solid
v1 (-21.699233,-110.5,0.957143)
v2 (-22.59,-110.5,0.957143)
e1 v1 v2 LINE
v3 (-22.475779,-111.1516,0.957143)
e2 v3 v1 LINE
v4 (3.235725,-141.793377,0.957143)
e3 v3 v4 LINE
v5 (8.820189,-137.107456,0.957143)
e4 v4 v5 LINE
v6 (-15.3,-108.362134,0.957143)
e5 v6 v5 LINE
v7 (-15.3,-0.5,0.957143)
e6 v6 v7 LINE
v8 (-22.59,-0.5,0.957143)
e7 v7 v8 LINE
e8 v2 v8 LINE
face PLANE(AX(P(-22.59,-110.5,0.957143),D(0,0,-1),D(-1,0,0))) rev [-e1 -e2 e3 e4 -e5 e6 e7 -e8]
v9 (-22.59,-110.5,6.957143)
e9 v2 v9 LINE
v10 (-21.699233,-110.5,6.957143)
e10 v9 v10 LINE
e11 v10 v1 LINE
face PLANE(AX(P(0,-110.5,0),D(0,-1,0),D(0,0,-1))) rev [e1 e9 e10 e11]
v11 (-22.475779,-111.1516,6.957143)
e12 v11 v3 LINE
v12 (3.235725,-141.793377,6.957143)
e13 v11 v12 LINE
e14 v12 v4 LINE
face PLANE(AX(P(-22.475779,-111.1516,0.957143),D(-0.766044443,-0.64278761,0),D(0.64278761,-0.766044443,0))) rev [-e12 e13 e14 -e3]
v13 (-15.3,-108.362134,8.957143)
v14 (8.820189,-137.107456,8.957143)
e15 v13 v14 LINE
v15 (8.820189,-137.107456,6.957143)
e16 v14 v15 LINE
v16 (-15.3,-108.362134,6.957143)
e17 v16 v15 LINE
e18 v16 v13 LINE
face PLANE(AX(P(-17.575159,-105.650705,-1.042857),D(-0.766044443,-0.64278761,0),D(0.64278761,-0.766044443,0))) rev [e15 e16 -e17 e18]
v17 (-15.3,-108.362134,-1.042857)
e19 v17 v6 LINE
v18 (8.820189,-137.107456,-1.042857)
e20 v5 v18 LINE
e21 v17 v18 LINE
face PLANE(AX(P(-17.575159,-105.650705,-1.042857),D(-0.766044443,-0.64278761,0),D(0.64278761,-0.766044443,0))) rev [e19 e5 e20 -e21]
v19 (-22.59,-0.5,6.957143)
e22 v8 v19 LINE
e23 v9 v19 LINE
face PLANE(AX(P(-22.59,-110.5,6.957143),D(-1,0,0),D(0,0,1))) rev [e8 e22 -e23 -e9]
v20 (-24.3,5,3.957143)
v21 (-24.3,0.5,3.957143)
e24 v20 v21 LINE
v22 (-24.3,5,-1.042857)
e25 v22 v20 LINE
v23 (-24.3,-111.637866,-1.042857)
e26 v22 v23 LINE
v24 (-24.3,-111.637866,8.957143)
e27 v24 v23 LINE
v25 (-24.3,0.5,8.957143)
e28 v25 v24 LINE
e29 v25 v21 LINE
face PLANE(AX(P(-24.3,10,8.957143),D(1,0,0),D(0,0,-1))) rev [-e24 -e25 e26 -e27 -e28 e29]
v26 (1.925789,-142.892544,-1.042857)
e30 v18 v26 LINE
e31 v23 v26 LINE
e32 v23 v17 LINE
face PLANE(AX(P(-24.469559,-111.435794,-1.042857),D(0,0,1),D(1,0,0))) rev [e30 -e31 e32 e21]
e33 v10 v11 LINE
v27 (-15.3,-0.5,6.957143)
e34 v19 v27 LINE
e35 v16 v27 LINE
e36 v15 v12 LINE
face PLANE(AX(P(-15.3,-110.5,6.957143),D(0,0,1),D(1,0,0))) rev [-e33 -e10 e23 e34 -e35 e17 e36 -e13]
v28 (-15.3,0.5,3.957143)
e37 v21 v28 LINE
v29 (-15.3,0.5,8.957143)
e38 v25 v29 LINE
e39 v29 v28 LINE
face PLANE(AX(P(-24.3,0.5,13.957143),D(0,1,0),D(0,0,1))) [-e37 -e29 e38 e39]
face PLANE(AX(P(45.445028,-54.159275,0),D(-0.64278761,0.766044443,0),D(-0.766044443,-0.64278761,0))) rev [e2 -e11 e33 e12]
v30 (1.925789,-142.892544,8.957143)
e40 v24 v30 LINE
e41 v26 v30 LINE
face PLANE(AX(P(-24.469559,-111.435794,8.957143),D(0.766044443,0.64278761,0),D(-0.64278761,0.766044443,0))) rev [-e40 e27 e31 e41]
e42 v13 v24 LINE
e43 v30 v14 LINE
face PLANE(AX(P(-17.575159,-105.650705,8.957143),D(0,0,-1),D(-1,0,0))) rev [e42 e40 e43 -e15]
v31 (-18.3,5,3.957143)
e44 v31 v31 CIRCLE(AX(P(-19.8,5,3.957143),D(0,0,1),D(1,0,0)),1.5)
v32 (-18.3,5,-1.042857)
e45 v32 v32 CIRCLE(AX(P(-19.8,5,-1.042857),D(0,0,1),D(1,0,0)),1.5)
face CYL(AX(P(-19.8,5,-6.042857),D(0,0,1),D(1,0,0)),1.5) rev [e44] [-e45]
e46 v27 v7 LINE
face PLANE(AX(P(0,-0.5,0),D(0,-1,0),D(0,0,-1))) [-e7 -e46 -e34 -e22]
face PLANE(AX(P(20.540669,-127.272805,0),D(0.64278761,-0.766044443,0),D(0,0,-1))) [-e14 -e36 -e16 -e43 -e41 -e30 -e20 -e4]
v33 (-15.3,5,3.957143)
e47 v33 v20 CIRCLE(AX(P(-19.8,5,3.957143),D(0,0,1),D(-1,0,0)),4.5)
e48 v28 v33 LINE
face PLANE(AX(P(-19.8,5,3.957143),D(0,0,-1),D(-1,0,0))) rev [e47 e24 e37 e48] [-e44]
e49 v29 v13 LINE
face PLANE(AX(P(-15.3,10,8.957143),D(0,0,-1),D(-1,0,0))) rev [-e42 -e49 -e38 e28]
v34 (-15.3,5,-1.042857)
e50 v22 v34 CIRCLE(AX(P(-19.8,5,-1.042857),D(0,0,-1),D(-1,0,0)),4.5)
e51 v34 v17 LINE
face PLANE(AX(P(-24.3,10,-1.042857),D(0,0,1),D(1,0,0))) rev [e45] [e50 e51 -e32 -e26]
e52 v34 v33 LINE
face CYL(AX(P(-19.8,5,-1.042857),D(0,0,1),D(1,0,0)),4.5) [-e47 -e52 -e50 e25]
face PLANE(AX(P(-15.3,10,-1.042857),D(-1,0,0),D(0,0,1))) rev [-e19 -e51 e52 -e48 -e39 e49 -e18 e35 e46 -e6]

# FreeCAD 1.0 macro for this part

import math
import FreeCAD as App
import Part
import Sketcher
Q = App.Units.Quantity


def add_polygon(sketch, points):
    """Adds a closed chain of lines whose ends are joined by coincident constraints."""
    first, n = sketch.GeometryCount, len(points)
    for a, b in zip(points, points[1:] + points[:1]):
        sketch.addGeometry(Part.LineSegment(App.Vector(*a, 0), App.Vector(*b, 0)), False)
    for i in range(n):
        sketch.addConstraint(Sketcher.Constraint("Coincident", first + i, 2, first + (i + 1) % n, 1))

doc = App.newDocument("Part")
params = doc.addObject("Spreadsheet::Sheet", "Params")
for row, (alias, value) in enumerate([
    ("sketch1_width", "9 mm"),
    ("sketch1_height", "10 mm"),
    ("pad1_length", "10 mm"),
    ("sketch2_radius", "4.5 mm"),
    ("sketch2_height", "5 mm"),
    ("pocket1_length", "10 mm"),
    ("sketch3_width", "9 mm"),
    ("sketch3_height", "10 mm"),
    ("sketch4_height", "110 mm"),
    ("sketch5_radius", "4.5 mm"),
    ("sketch5_height", "4.5 mm"),
    ("pocket2_length", "10 mm"),
    ("sketch6_diameter", "3 mm"),
    ("pocket3_length", "10 mm"),
    ("sketch7_height", "6 mm"),
    ("sketch7_width", "7.29 mm"),
    ("pocket4_length", "110 mm"),
    ("sketch8_height", "6 mm"),
    ("sketch8_width", "7.29 mm"),
    ("pocket5_length", "40 mm"),
], start=1):
    params.set(f"A{row}", alias)
    params.set(f"B{row}", "=" + value)
    params.setAlias(f"B{row}", alias)

body = doc.addObject("PartDesign::Body", "Body")

sketch1 = body.newObject("Sketcher::SketchObject", "Sketch")
sketch1.AttachmentSupport = (doc.getObject("XZ_Plane"), [""])
sketch1.MapMode = "FlatFace"
add_polygon(sketch1, [(-24, -1), (-24, 9), (-15, 9), (-15, -1)])
sketch1.addConstraint(Sketcher.Constraint("Vertical", 0))
sketch1.addConstraint(Sketcher.Constraint("Horizontal", 1))
sketch1.addConstraint(Sketcher.Constraint("Vertical", 2))
sketch1.addConstraint(Sketcher.Constraint("Horizontal", 3))
sketch1.addConstraint(Sketcher.Constraint("DistanceX", 1, 1, 1, 2, 9.0))
sketch1.addConstraint(Sketcher.Constraint("DistanceY", 0, 1, 0, 2, 10.0))
sketch1.addConstraint(Sketcher.Constraint("DistanceX", 0, 2, -1, 1, 24.3))
sketch1.addConstraint(Sketcher.Constraint("DistanceY", -1, 1, 0, 2, 8.957143))
sketch1.setExpression("Constraints[8]", "Params.sketch1_width")
sketch1.setExpression("Constraints[9]", "Params.sketch1_height")
pad1 = body.newObject("PartDesign::Pad", "Pad")
pad1.Profile = sketch1
pad1.setExpression("Length", "Params.pad1_length")
pad1.Reversed = True

sketch2 = body.newObject("Sketcher::SketchObject", "Sketch001")
sketch2.AttachmentSupport = (doc.getObject("XY_Plane"), [""])
sketch2.MapMode = "FlatFace"
sketch2.AttachmentOffset = App.Placement(App.Vector(0, 0, 8.957143), App.Rotation())
sketch2.addGeometry(Part.LineSegment(App.Vector(-24.3, 10, 0), App.Vector(-24.3, 5, 0)), False)
sketch2.addGeometry(Part.ArcOfCircle(Part.Circle(App.Vector(-19.8, 5, 0), App.Vector(0, 0, 1), 4.5), math.radians(0), math.radians(180)), False)
sketch2.addGeometry(Part.LineSegment(App.Vector(-15.3, 5, 0), App.Vector(-15.3, 10, 0)), False)
sketch2.addGeometry(Part.LineSegment(App.Vector(-15.3, 10, 0), App.Vector(-24.3, 10, 0)), False)
sketch2.addConstraint(Sketcher.Constraint("Tangent", 0, 2, 1, 2))
sketch2.addConstraint(Sketcher.Constraint("Tangent", 1, 1, 2, 1))
sketch2.addConstraint(Sketcher.Constraint("Coincident", 2, 2, 3, 1))
sketch2.addConstraint(Sketcher.Constraint("Coincident", 3, 2, 0, 1))
sketch2.addConstraint(Sketcher.Constraint("Vertical", 0))
sketch2.addConstraint(Sketcher.Constraint("Vertical", 2))
sketch2.addConstraint(Sketcher.Constraint("Horizontal", 3))
sketch2.addConstraint(Sketcher.Constraint("Radius", 1, 4.5))
sketch2.addConstraint(Sketcher.Constraint("DistanceY", 0, 2, 0, 1, 5.0))
sketch2.addConstraint(Sketcher.Constraint("DistanceY", -1, 1, 1, 3, 5.0))
sketch2.addConstraint(Sketcher.Constraint("DistanceX", 1, 3, -1, 1, 19.8))
sketch2.setExpression("Constraints[7]", "Params.sketch2_radius")
sketch2.setExpression("Constraints[8]", "Params.sketch2_height")
pocket1 = body.newObject("PartDesign::Pocket", "Pocket")
pocket1.Profile = sketch2
pocket1.setExpression("Length", "Params.pocket1_length")

sketch3 = body.newObject("Sketcher::SketchObject", "Sketch002")
sketch3.AttachmentSupport = (doc.getObject("XZ_Plane"), [""])
sketch3.MapMode = "FlatFace"
add_polygon(sketch3, [(-24, -1), (-24, 9), (-15, 9), (-15, -1)])
sketch3.addConstraint(Sketcher.Constraint("Vertical", 0))
sketch3.addConstraint(Sketcher.Constraint("Horizontal", 1))
sketch3.addConstraint(Sketcher.Constraint("Vertical", 2))
sketch3.addConstraint(Sketcher.Constraint("Horizontal", 3))
sketch3.addConstraint(Sketcher.Constraint("DistanceX", 1, 1, 1, 2, 9.0))
sketch3.addConstraint(Sketcher.Constraint("DistanceY", 0, 1, 0, 2, 10.0))
sketch3.addConstraint(Sketcher.Constraint("DistanceX", 0, 2, -1, 1, 24.3))
sketch3.addConstraint(Sketcher.Constraint("DistanceY", -1, 1, 0, 2, 8.957143))
sketch3.setExpression("Constraints[8]", "Params.sketch3_width")
sketch3.setExpression("Constraints[9]", "Params.sketch3_height")

sketch4 = body.newObject("Sketcher::SketchObject", "Sketch003")
sketch4.AttachmentSupport = (doc.getObject("XY_Plane"), [""])
sketch4.MapMode = "FlatFace"
sketch4.AttachmentOffset = App.Placement(App.Vector(0, 0, 3.957143), App.Rotation())
sketch4.addGeometry(Part.LineSegment(App.Vector(-20, 0, 0), App.Vector(-20, -110, 0)), False)
sketch4.addGeometry(Part.LineSegment(App.Vector(-20, -110, 0), App.Vector(5, -140, 0)), False)
sketch4.addConstraint(Sketcher.Constraint("Coincident", 0, 2, 1, 1))
sketch4.addConstraint(Sketcher.Constraint("Vertical", 0))
sketch4.addConstraint(Sketcher.Constraint("PointOnObject", 0, 1, -1))
sketch4.addConstraint(Sketcher.Constraint("DistanceY", 0, 2, 0, 1, 110.0))
sketch4.addConstraint(Sketcher.Constraint("Angle", 1, Q("-50 deg")))
sketch4.addConstraint(Sketcher.Constraint("DistanceY", 1, 2, -1, 1, 140.0))
sketch4.addConstraint(Sketcher.Constraint("DistanceX", 0, 1, -1, 1, 19.8))
sketch4.setExpression("Constraints[3]", "Params.sketch4_height")
doc.recompute()

additivepipe = body.newObject("PartDesign::AdditivePipe", "AdditivePipe")
additivepipe.Profile = sketch3
additivepipe.Spine = (sketch4, ["Edge1", "Edge2"])
additivepipe.Transition = "Right corner"

sketch5 = body.newObject("Sketcher::SketchObject", "Sketch004")
sketch5.AttachmentSupport = (doc.getObject("XY_Plane"), [""])
sketch5.MapMode = "FlatFace"
sketch5.AttachmentOffset = App.Placement(App.Vector(0, 0, 13.957143), App.Rotation())
sketch5.addGeometry(Part.LineSegment(App.Vector(-24.3, 5, 0), App.Vector(-24.3, 0.5, 0)), False)
sketch5.addGeometry(Part.LineSegment(App.Vector(-24.3, 0.5, 0), App.Vector(-15.3, 0.5, 0)), False)
sketch5.addGeometry(Part.LineSegment(App.Vector(-15.3, 0.5, 0), App.Vector(-15.3, 5, 0)), False)
sketch5.addGeometry(Part.ArcOfCircle(Part.Circle(App.Vector(-19.8, 5, 0), App.Vector(0, 0, 1), 4.5), math.radians(0), math.radians(180)), False)
sketch5.addConstraint(Sketcher.Constraint("Coincident", 0, 2, 1, 1))
sketch5.addConstraint(Sketcher.Constraint("Coincident", 1, 2, 2, 1))
sketch5.addConstraint(Sketcher.Constraint("Tangent", 2, 2, 3, 1))
sketch5.addConstraint(Sketcher.Constraint("Tangent", 3, 2, 0, 1))
sketch5.addConstraint(Sketcher.Constraint("Vertical", 0))
sketch5.addConstraint(Sketcher.Constraint("Horizontal", 1))
sketch5.addConstraint(Sketcher.Constraint("Vertical", 2))
sketch5.addConstraint(Sketcher.Constraint("Radius", 3, 4.5))
sketch5.addConstraint(Sketcher.Constraint("DistanceY", 0, 2, 0, 1, 4.5))
sketch5.addConstraint(Sketcher.Constraint("DistanceY", -1, 1, 3, 3, 5.0))
sketch5.addConstraint(Sketcher.Constraint("DistanceX", 3, 3, -1, 1, 19.8))
sketch5.setExpression("Constraints[7]", "Params.sketch5_radius")
sketch5.setExpression("Constraints[8]", "Params.sketch5_height")
pocket2 = body.newObject("PartDesign::Pocket", "Pocket001")
pocket2.Profile = sketch5
pocket2.setExpression("Length", "Params.pocket2_length")

sketch6 = body.newObject("Sketcher::SketchObject", "Sketch005")
sketch6.AttachmentSupport = (doc.getObject("XY_Plane"), [""])
sketch6.MapMode = "FlatFace"
sketch6.AttachmentOffset = App.Placement(App.Vector(0, 0, 3.957143), App.Rotation())
sketch6.addGeometry(Part.Circle(App.Vector(-19.8, 5, 0), App.Vector(0, 0, 1), 1.5), False)
sketch6.addConstraint(Sketcher.Constraint("Diameter", 0, 3.0))
sketch6.addConstraint(Sketcher.Constraint("DistanceY", -1, 1, 0, 3, 5.0))
sketch6.addConstraint(Sketcher.Constraint("DistanceX", 0, 3, -1, 1, 19.8))
sketch6.setExpression("Constraints[0]", "Params.sketch6_diameter")
pocket3 = body.newObject("PartDesign::Pocket", "Pocket002")
pocket3.Profile = sketch6
pocket3.setExpression("Length", "Params.pocket3_length")

sketch7 = body.newObject("Sketcher::SketchObject", "Sketch006")
sketch7.AttachmentSupport = (doc.getObject("XZ_Plane"), [""])
sketch7.MapMode = "FlatFace"
sketch7.AttachmentOffset = App.Placement(App.Vector(0, 0, 0.5), App.Rotation())
add_polygon(sketch7, [(-23, 1), (-23, 7), (-15, 7), (-15, 1)])
sketch7.addConstraint(Sketcher.Constraint("Vertical", 0))
sketch7.addConstraint(Sketcher.Constraint("Horizontal", 1))
sketch7.addConstraint(Sketcher.Constraint("Vertical", 2))
sketch7.addConstraint(Sketcher.Constraint("Horizontal", 3))
sketch7.addConstraint(Sketcher.Constraint("DistanceY", 0, 1, 0, 2, 6.0))
sketch7.addConstraint(Sketcher.Constraint("DistanceX", 1, 1, 1, 2, 7.29))
sketch7.addConstraint(Sketcher.Constraint("DistanceX", 1, 2, -1, 1, 15.3))
sketch7.addConstraint(Sketcher.Constraint("DistanceY", -1, 1, 0, 2, 6.957143))
sketch7.setExpression("Constraints[8]", "Params.sketch7_height")
sketch7.setExpression("Constraints[9]", "Params.sketch7_width")
pocket4 = body.newObject("PartDesign::Pocket", "Pocket003")
pocket4.Profile = sketch7
pocket4.setExpression("Length", "Params.pocket4_length")
pocket4.Reversed = True

sketch8 = body.newObject("Sketcher::SketchObject", "Sketch007")
sketch8.Placement = App.Placement(App.Vector(71.156532, -84.801053, 0), App.Rotation(App.Vector(0.766044443, 0.64278761, 0), App.Vector(0, 0, 1), App.Vector(0.64278761, -0.766044443, 0), "ZXY"))
add_polygon(sketch8, [(-89, 7), (-89, 1), (-81, 1), (-81, 7)])
sketch8.addConstraint(Sketcher.Constraint("Vertical", 0))
sketch8.addConstraint(Sketcher.Constraint("Horizontal", 1))
sketch8.addConstraint(Sketcher.Constraint("Vertical", 2))
sketch8.addConstraint(Sketcher.Constraint("Horizontal", 3))
sketch8.addConstraint(Sketcher.Constraint("DistanceY", 0, 2, 0, 1, 6.0))
sketch8.addConstraint(Sketcher.Constraint("DistanceX", 1, 1, 1, 2, 7.29))
sketch8.addConstraint(Sketcher.Constraint("DistanceX", 0, 2, -1, 1, 88.664317))
sketch8.addConstraint(Sketcher.Constraint("DistanceY", -1, 1, 0, 2, 0.957143))
sketch8.setExpression("Constraints[8]", "Params.sketch8_height")
sketch8.setExpression("Constraints[9]", "Params.sketch8_width")
pocket5 = body.newObject("PartDesign::Pocket", "Pocket004")
pocket5.Profile = sketch8
pocket5.setExpression("Length", "Params.pocket5_length")

doc.recompute()
